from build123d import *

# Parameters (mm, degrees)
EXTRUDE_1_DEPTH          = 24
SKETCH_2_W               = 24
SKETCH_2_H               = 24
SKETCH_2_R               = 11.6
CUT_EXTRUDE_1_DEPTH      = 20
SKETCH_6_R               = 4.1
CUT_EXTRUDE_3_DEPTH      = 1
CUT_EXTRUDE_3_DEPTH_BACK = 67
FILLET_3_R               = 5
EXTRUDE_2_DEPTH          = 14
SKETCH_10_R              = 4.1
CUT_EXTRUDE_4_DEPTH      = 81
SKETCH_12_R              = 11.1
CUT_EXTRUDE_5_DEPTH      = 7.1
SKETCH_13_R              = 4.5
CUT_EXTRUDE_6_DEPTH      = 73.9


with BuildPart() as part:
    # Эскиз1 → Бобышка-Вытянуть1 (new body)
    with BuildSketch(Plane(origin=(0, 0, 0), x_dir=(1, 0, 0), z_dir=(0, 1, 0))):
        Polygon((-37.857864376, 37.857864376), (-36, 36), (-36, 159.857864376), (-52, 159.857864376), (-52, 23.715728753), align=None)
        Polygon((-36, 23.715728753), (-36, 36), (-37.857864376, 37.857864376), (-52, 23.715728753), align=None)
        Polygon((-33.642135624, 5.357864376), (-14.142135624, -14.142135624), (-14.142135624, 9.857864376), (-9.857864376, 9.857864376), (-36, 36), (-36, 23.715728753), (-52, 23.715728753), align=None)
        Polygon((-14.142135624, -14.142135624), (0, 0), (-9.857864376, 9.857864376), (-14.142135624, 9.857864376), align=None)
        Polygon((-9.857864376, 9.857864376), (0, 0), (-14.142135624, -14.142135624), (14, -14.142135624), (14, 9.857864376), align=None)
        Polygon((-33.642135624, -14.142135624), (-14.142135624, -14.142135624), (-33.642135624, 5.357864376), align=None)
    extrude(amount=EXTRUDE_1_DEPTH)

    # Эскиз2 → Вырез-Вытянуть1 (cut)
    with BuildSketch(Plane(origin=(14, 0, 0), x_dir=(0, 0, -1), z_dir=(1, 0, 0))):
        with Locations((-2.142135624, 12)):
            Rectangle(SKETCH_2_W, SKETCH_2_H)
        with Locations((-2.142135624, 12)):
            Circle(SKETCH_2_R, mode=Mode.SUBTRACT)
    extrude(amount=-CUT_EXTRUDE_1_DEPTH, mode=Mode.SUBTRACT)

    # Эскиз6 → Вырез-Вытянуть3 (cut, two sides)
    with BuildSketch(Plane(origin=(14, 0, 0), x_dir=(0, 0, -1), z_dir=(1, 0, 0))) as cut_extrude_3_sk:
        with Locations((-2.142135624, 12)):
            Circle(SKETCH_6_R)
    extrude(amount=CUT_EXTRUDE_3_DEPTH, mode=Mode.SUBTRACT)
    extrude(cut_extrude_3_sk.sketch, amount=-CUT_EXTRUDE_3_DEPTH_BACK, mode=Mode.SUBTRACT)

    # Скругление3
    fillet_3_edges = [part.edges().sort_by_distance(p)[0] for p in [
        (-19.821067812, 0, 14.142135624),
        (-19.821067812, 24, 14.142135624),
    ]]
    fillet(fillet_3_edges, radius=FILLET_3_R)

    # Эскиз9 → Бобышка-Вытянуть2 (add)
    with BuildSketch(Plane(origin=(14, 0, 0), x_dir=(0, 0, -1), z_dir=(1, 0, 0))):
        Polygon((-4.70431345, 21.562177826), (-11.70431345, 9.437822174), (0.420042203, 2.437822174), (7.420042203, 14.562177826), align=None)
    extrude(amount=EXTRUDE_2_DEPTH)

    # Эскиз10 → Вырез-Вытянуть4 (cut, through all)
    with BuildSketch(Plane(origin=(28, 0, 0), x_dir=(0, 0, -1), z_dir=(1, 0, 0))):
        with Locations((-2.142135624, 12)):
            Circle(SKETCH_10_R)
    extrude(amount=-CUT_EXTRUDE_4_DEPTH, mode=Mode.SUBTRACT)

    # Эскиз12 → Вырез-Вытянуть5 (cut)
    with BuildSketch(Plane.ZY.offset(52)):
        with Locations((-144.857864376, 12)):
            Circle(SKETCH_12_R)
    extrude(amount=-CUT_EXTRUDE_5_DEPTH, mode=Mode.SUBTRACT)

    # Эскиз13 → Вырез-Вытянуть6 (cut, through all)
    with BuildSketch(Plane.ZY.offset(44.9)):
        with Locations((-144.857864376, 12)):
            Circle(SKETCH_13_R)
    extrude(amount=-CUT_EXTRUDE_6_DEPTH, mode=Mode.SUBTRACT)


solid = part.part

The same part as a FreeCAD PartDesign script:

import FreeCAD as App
import Part
import Sketcher
Q = App.Units.Quantity


def edges_at(feature, points):
    """Names of the edges that pass closest to the given points."""
    edges = feature.Shape.Edges
    near = lambda p: min(range(len(edges)), key=lambda i: edges[i].distToShape(Part.Vertex(*p))[0])
    return sorted({f"Edge{near(p) + 1}" for p in points})

doc = App.newDocument("Part")
body = doc.addObject("PartDesign::Body", "Body")

# Sketch on XZ plane
sketch1 = body.newObject("Sketcher::SketchObject", "Sketch")
sketch1.AttachmentSupport = (doc.getObject("XZ_Plane"), [""])
sketch1.MapMode = "FlatFace"
sketch1.addGeometry([
    Part.LineSegment(App.Vector(-36, -160, 0), App.Vector(-52, -160, 0)),  # 0
    Part.LineSegment(App.Vector(-52, -160, 0), App.Vector(-52, -24, 0)),  # 1
    Part.LineSegment(App.Vector(-52, -24, 0), App.Vector(-34, -5, 0)),  # 2
    Part.LineSegment(App.Vector(-34, -5, 0), App.Vector(-34, 14, 0)),  # 3
    Part.LineSegment(App.Vector(-34, 14, 0), App.Vector(14, 14, 0)),  # 4
    Part.LineSegment(App.Vector(14, 14, 0), App.Vector(14, -10, 0)),  # 5
    Part.LineSegment(App.Vector(14, -10, 0), App.Vector(-10, -10, 0)),  # 6
    Part.LineSegment(App.Vector(-10, -10, 0), App.Vector(-36, -36, 0)),  # 7
    Part.LineSegment(App.Vector(-36, -36, 0), App.Vector(-36, -160, 0)),  # 8
], False)
sketch1.addConstraint([
    Sketcher.Constraint("Coincident", 0, 2, 1, 1),
    Sketcher.Constraint("Coincident", 1, 2, 2, 1),
    Sketcher.Constraint("Coincident", 2, 2, 3, 1),
    Sketcher.Constraint("Coincident", 3, 2, 4, 1),
    Sketcher.Constraint("Coincident", 4, 2, 5, 1),
    Sketcher.Constraint("Coincident", 5, 2, 6, 1),
    Sketcher.Constraint("Coincident", 6, 2, 7, 1),
    Sketcher.Constraint("Coincident", 7, 2, 8, 1),
    Sketcher.Constraint("Coincident", 8, 2, 0, 1),
    Sketcher.Constraint("Horizontal", 0),
    Sketcher.Constraint("Vertical", 1),
    Sketcher.Constraint("Vertical", 3),
    Sketcher.Constraint("Horizontal", 4),
    Sketcher.Constraint("Vertical", 5),
    Sketcher.Constraint("Horizontal", 6),
    Sketcher.Constraint("Vertical", 8),
    Sketcher.Constraint("Parallel", 2, 7),
    Sketcher.Constraint("DistanceX", 0, 2, 0, 1, Q("16 mm")),
    Sketcher.Constraint("DistanceY", 5, 2, 5, 1, Q("24 mm")),
    Sketcher.Constraint("Angle", 2, Q("45 deg")),
    Sketcher.Constraint("DistanceY", 3, 1, 3, 2, Q("19.5 mm")),
    Sketcher.Constraint("DistanceX", 0, 2, -1, 1, Q("52 mm")),
    Sketcher.Constraint("DistanceX", -1, 1, 4, 2, Q("14 mm")),
    Sketcher.Constraint("DistanceY", 7, 2, -1, 1, Q("36 mm")),
    Sketcher.Constraint("DistanceY", 0, 2, 3, 2, Q("174 mm")),
    Sketcher.Constraint("Distance", 2, Q("25.961941 mm")),
    Sketcher.Constraint("DistanceX", 6, 2, 6, 1, Q("23.857864 mm")),
])
pad1 = body.newObject("PartDesign::Pad", "Pad")
pad1.Profile = sketch1
pad1.Length = 24
pad1.Reversed = True

# Sketch on YZ plane
sketch2 = body.newObject("Sketcher::SketchObject", "Sketch001")
sketch2.AttachmentSupport = (doc.getObject("YZ_Plane"), [""])
sketch2.MapMode = "FlatFace"
sketch2.AttachmentOffset = App.Placement(App.Vector(0, 0, 14), App.Rotation())
sketch2.addGeometry([
    Part.LineSegment(App.Vector(24, 14, 0), App.Vector(0, 14, 0)),  # 0
    Part.LineSegment(App.Vector(0, 14, 0), App.Vector(0, -10, 0)),  # 1
    Part.LineSegment(App.Vector(0, -10, 0), App.Vector(24, -10, 0)),  # 2
    Part.LineSegment(App.Vector(24, -10, 0), App.Vector(24, 14, 0)),  # 3
    Part.Circle(App.Vector(12, 2, 0), App.Vector(0, 0, 1), 12),  # 4
], False)
sketch2.addConstraint([
    Sketcher.Constraint("Coincident", 0, 2, 1, 1),
    Sketcher.Constraint("Coincident", 1, 2, 2, 1),
    Sketcher.Constraint("Coincident", 2, 2, 3, 1),
    Sketcher.Constraint("Coincident", 3, 2, 0, 1),
    Sketcher.Constraint("Horizontal", 0),
    Sketcher.Constraint("Vertical", 1),
    Sketcher.Constraint("Horizontal", 2),
    Sketcher.Constraint("Vertical", 3),
    Sketcher.Constraint("PointOnObject", 0, 2, -2),
    Sketcher.Constraint("Equal", 2, 1),
    Sketcher.Constraint("Diameter", 4, Q("23.2 mm")),
    Sketcher.Constraint("DistanceX", 0, 2, 0, 1, Q("24 mm")),
    Sketcher.Constraint("DistanceX", -1, 1, 4, 3, Q("12 mm")),
    Sketcher.Constraint("DistanceY", 4, 3, 0, 2, Q("12 mm")),
    Sketcher.Constraint("DistanceY", -1, 1, 4, 3, Q("2.142136 mm")),
])
pocket1 = body.newObject("PartDesign::Pocket", "Pocket")
pocket1.Profile = sketch2
pocket1.Length = 20

# Sketch on YZ plane
sketch3 = body.newObject("Sketcher::SketchObject", "Sketch002")
sketch3.AttachmentSupport = (doc.getObject("YZ_Plane"), [""])
sketch3.MapMode = "FlatFace"
sketch3.AttachmentOffset = App.Placement(App.Vector(0, 0, 14), App.Rotation())
sketch3.addGeometry(Part.Circle(App.Vector(12, 2.1, 0), App.Vector(0, 0, 1), 4.1), False)
sketch3.addConstraint([
    Sketcher.Constraint("Diameter", 0, Q("8.2 mm")),
    Sketcher.Constraint("DistanceX", -1, 1, 0, 3, Q("12 mm")),
    Sketcher.Constraint("DistanceY", -1, 1, 0, 3, Q("2.142136 mm")),
])
pocket2 = body.newObject("PartDesign::Pocket", "Pocket001")
pocket2.Profile = sketch3
pocket2.Type = "ThroughAll"
pocket2.Midplane = True
doc.recompute()

fillet = body.newObject("PartDesign::Fillet", "Fillet")
fillet.Base = (pocket2, edges_at(pocket2, [(-19.821, 0, 14.142), (-19.821, 24, 14.142)]))
fillet.Radius = 5

# Sketch on YZ plane
sketch4 = body.newObject("Sketcher::SketchObject", "Sketch003")
sketch4.AttachmentSupport = (doc.getObject("YZ_Plane"), [""])
sketch4.MapMode = "FlatFace"
sketch4.AttachmentOffset = App.Placement(App.Vector(0, 0, 14), App.Rotation())
sketch4.addGeometry([
    Part.LineSegment(App.Vector(22, 5, 0), App.Vector(9, 12, 0)),
    Part.LineSegment(App.Vector(9, 12, 0), App.Vector(2, 0, 0)),
    Part.LineSegment(App.Vector(2, 0, 0), App.Vector(15, -7, 0)),
    Part.LineSegment(App.Vector(15, -7, 0), App.Vector(22, 5, 0)),
], False)
sketch4.addConstraint([
    Sketcher.Constraint("Coincident", 0, 2, 1, 1),
    Sketcher.Constraint("Coincident", 1, 2, 2, 1),
    Sketcher.Constraint("Coincident", 2, 2, 3, 1),
    Sketcher.Constraint("Coincident", 3, 2, 0, 1),
    Sketcher.Constraint("Perpendicular", 0, 1),
    Sketcher.Constraint("Perpendicular", 1, 2),
    Sketcher.Constraint("Perpendicular", 2, 3),
    Sketcher.Constraint("Equal", 0, 1),
    Sketcher.Constraint("Angle", 0, Q("150 deg")),
    Sketcher.Constraint("Distance", 0, Q("14 mm")),
    Sketcher.Constraint("DistanceX", -1, 1, 0, 2, Q("9.437822 mm")),
    Sketcher.Constraint("DistanceY", -1, 1, 0, 2, Q("11.704313 mm")),
])
pad2 = body.newObject("PartDesign::Pad", "Pad001")
pad2.Profile = sketch4
pad2.Length = 14

# Sketch on YZ plane
sketch5 = body.newObject("Sketcher::SketchObject", "Sketch004")
sketch5.AttachmentSupport = (doc.getObject("YZ_Plane"), [""])
sketch5.MapMode = "FlatFace"
sketch5.AttachmentOffset = App.Placement(App.Vector(0, 0, 28), App.Rotation())
sketch5.addGeometry(Part.Circle(App.Vector(12, 2.1, 0), App.Vector(0, 0, 1), 4.1), False)
sketch5.addConstraint([
    Sketcher.Constraint("Diameter", 0, Q("8.2 mm")),
    Sketcher.Constraint("DistanceX", -1, 1, 0, 3, Q("12 mm")),
    Sketcher.Constraint("DistanceY", -1, 1, 0, 3, Q("2.142136 mm")),
])
pocket3 = body.newObject("PartDesign::Pocket", "Pocket002")
pocket3.Profile = sketch5
pocket3.Type = "ThroughAll"

# Sketch on YZ plane
sketch6 = body.newObject("Sketcher::SketchObject", "Sketch005")
sketch6.AttachmentSupport = (doc.getObject("YZ_Plane"), [""])
sketch6.MapMode = "FlatFace"
sketch6.AttachmentOffset = App.Placement(App.Vector(0, 0, -52), App.Rotation())
sketch6.addGeometry(Part.Circle(App.Vector(12, -145, 0), App.Vector(0, 0, 1), 11), False)
sketch6.addConstraint([
    Sketcher.Constraint("Diameter", 0, Q("22.2 mm")),
    Sketcher.Constraint("DistanceX", -1, 1, 0, 3, Q("12 mm")),
    Sketcher.Constraint("DistanceY", 0, 3, -1, 1, Q("144.857864 mm")),
])
pocket4 = body.newObject("PartDesign::Pocket", "Pocket003")
pocket4.Profile = sketch6
pocket4.Length = 7.1
pocket4.Reversed = True

# Sketch on YZ plane
sketch7 = body.newObject("Sketcher::SketchObject", "Sketch006")
sketch7.AttachmentSupport = (doc.getObject("YZ_Plane"), [""])
sketch7.MapMode = "FlatFace"
sketch7.AttachmentOffset = App.Placement(App.Vector(0, 0, -44.9), App.Rotation())
sketch7.addGeometry(Part.Circle(App.Vector(12, -144.9, 0), App.Vector(0, 0, 1), 4.5), False)
sketch7.addConstraint([
    Sketcher.Constraint("Diameter", 0, Q("9 mm")),
    Sketcher.Constraint("DistanceX", -1, 1, 0, 3, Q("12 mm")),
    Sketcher.Constraint("DistanceY", 0, 3, -1, 1, Q("144.857864 mm")),
])
pocket5 = body.newObject("PartDesign::Pocket", "Pocket004")
pocket5.Profile = sketch7
pocket5.Type = "ThroughAll"
pocket5.Reversed = True

doc.recompute()
